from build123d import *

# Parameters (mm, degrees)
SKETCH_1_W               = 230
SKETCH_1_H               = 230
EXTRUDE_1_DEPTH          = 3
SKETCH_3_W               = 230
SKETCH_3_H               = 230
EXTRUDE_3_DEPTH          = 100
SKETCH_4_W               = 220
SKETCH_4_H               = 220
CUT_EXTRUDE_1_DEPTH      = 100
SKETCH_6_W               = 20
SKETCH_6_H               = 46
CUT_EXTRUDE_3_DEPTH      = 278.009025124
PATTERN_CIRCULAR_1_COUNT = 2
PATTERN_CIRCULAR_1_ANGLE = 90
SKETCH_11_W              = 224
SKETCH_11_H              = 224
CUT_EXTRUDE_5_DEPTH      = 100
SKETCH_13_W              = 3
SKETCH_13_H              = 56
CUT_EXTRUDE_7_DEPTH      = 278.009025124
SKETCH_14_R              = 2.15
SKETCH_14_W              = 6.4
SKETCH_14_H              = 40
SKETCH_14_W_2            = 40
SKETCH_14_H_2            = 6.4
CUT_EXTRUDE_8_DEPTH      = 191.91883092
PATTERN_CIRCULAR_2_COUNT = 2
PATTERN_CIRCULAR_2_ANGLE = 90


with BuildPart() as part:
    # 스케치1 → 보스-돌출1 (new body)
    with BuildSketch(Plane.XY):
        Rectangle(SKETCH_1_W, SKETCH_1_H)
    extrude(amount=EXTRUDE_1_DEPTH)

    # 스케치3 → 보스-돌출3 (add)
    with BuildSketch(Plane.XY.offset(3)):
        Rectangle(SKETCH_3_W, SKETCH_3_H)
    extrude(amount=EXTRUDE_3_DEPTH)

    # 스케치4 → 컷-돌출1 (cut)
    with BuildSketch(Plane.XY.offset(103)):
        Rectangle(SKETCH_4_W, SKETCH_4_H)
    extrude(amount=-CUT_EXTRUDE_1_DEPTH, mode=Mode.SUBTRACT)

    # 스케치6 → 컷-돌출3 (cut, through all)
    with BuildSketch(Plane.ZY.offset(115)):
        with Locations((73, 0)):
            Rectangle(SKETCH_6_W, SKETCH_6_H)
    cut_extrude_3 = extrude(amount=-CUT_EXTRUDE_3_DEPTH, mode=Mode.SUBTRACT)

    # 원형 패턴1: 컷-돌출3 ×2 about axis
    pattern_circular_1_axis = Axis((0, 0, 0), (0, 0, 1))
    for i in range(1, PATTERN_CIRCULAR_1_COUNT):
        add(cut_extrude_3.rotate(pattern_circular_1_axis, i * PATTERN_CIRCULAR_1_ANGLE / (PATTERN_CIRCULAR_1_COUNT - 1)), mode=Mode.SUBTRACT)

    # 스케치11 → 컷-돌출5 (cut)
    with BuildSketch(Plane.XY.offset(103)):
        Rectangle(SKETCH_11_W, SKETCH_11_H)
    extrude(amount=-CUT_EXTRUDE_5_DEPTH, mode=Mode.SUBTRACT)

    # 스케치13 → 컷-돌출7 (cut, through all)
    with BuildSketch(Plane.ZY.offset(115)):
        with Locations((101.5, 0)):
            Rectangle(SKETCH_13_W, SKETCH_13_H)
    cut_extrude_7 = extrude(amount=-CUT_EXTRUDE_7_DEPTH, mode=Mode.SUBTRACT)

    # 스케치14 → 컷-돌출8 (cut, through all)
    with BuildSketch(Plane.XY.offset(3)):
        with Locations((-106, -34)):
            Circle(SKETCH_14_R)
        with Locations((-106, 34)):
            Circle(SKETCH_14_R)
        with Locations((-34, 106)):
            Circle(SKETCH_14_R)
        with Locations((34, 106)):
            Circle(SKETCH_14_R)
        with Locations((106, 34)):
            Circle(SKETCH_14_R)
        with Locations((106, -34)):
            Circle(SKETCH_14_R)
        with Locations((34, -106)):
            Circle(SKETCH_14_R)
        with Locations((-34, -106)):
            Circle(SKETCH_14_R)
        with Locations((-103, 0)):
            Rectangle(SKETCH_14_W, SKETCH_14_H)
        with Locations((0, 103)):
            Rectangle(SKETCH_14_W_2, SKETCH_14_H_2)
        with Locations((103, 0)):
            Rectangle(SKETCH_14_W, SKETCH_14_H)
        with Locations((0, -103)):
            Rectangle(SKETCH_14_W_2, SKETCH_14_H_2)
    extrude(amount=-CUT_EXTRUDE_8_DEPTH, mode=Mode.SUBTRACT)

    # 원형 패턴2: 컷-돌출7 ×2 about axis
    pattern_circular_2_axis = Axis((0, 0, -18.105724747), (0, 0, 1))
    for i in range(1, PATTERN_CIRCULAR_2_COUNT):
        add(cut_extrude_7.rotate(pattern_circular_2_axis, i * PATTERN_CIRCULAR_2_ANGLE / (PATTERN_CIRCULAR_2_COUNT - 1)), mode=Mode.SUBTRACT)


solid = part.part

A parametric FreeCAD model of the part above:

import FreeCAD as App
import Part
import Sketcher
from FreeCAD import Vector
Q = App.Units.Quantity


def add_polygon(sketch, points):
    """Adds a closed chain of lines whose ends are joined by coincident constraints."""
    first, n = sketch.GeometryCount, len(points)
    for a, b in zip(points, points[1:] + points[:1]):
        sketch.addGeometry(Part.LineSegment(App.Vector(*a, 0), App.Vector(*b, 0)), False)
    for i in range(n):
        sketch.addConstraint(Sketcher.Constraint("Coincident", first + i, 2, first + (i + 1) % n, 1))

doc = App.newDocument("Part")
body = doc.addObject("PartDesign::Body", "Body")

sketch1 = body.newObject("Sketcher::SketchObject", "Sketch")
sketch1.AttachmentSupport = (doc.getObject("XY_Plane"), [""])
sketch1.MapMode = "FlatFace"
add_polygon(sketch1, [(-115, 115), (-115, -115), (115, -115), (115, 115)])
sketch1.addConstraint([
    Sketcher.Constraint("Vertical", 0),
    Sketcher.Constraint("Horizontal", 1),
    Sketcher.Constraint("Vertical", 2),
    Sketcher.Constraint("Horizontal", 3),
    Sketcher.Constraint("Symmetric", 0, 2, 2, 2, -1, 1),
    Sketcher.Constraint("Equal", 3, 0),
    Sketcher.Constraint("DistanceX", 1, 1, 1, 2, Q("230 mm")),
])
pad1 = body.newObject("PartDesign::Pad", "Pad")
pad1.Profile = sketch1
pad1.Length = 3

sketch2 = body.newObject("Sketcher::SketchObject", "Sketch001")
sketch2.AttachmentSupport = (doc.getObject("XY_Plane"), [""])
sketch2.MapMode = "FlatFace"
sketch2.AttachmentOffset = App.Placement(Vector(0, 0, 3), App.Rotation())
add_polygon(sketch2, [(-115, 115), (-115, -115), (115, -115), (115, 115)])
sketch2.addConstraint([
    Sketcher.Constraint("Vertical", 0),
    Sketcher.Constraint("Horizontal", 1),
    Sketcher.Constraint("Vertical", 2),
    Sketcher.Constraint("Horizontal", 3),
    Sketcher.Constraint("Symmetric", 0, 2, 2, 2, -1, 1),
    Sketcher.Constraint("Equal", 3, 0),
    Sketcher.Constraint("DistanceX", 1, 1, 1, 2, Q("230 mm")),
])
pad2 = body.newObject("PartDesign::Pad", "Pad001")
pad2.Profile = sketch2
pad2.Length = 100

sketch3 = body.newObject("Sketcher::SketchObject", "Sketch002")
sketch3.AttachmentSupport = (doc.getObject("XY_Plane"), [""])
sketch3.MapMode = "FlatFace"
sketch3.AttachmentOffset = App.Placement(Vector(0, 0, 103), App.Rotation())
add_polygon(sketch3, [(-110, 110), (-110, -110), (110, -110), (110, 110)])
sketch3.addConstraint([
    Sketcher.Constraint("Vertical", 0),
    Sketcher.Constraint("Horizontal", 1),
    Sketcher.Constraint("Vertical", 2),
    Sketcher.Constraint("Horizontal", 3),
    Sketcher.Constraint("Symmetric", 0, 2, 2, 2, -1, 1),
    Sketcher.Constraint("Equal", 3, 0),
    Sketcher.Constraint("DistanceX", 1, 1, 1, 2, Q("220 mm")),
])
pocket1 = body.newObject("PartDesign::Pocket", "Pocket")
pocket1.Profile = sketch3
pocket1.Length = 100

sketch4 = body.newObject("Sketcher::SketchObject", "Sketch003")
sketch4.AttachmentSupport = (doc.getObject("YZ_Plane"), [""])
sketch4.MapMode = "FlatFace"
sketch4.AttachmentOffset = App.Placement(Vector(0, 0, -115), App.Rotation())
add_polygon(sketch4, [(23, 63), (-23, 63), (-23, 83), (23, 83)])
sketch4.addConstraint([
    Sketcher.Constraint("Horizontal", 0),
    Sketcher.Constraint("Vertical", 1),
    Sketcher.Constraint("Horizontal", 2),
    Sketcher.Constraint("Vertical", 3),
    Sketcher.Constraint("DistanceX", 0, 2, 0, 1, Q("46 mm")),
    Sketcher.Constraint("DistanceY", 1, 1, 1, 2, Q("20 mm")),
    Sketcher.Constraint("DistanceX", 0, 2, -1, 1, Q("23 mm")),
    Sketcher.Constraint("DistanceY", -1, 1, 0, 2, Q("63 mm")),
])
pocket2 = body.newObject("PartDesign::Pocket", "Pocket001")
pocket2.Profile = sketch4
pocket2.Type = "ThroughAll"
pocket2.Reversed = True
doc.recompute()

polarpattern = body.newObject("PartDesign::PolarPattern", "PolarPattern")
polarpattern.Originals = [pocket2]
polarpattern.Axis = (doc.getObject("Z_Axis"), [""])
polarpattern.Angle = 90
polarpattern.Occurrences = 2
body.Tip = polarpattern

sketch5 = body.newObject("Sketcher::SketchObject", "Sketch004")
sketch5.AttachmentSupport = (doc.getObject("XY_Plane"), [""])
sketch5.MapMode = "FlatFace"
sketch5.AttachmentOffset = App.Placement(Vector(0, 0, 103), App.Rotation())
add_polygon(sketch5, [(-112, 112), (-112, -112), (112, -112), (112, 112)])
sketch5.addConstraint([
    Sketcher.Constraint("Vertical", 0),
    Sketcher.Constraint("Horizontal", 1),
    Sketcher.Constraint("Vertical", 2),
    Sketcher.Constraint("Horizontal", 3),
    Sketcher.Constraint("Symmetric", 0, 2, 2, 2, -1, 1),
    Sketcher.Constraint("Equal", 3, 0),
    Sketcher.Constraint("DistanceX", 1, 1, 1, 2, Q("224 mm")),
])
pocket3 = body.newObject("PartDesign::Pocket", "Pocket002")
pocket3.Profile = sketch5
pocket3.Length = 100

sketch6 = body.newObject("Sketcher::SketchObject", "Sketch005")
sketch6.AttachmentSupport = (doc.getObject("YZ_Plane"), [""])
sketch6.MapMode = "FlatFace"
sketch6.AttachmentOffset = App.Placement(Vector(0, 0, -115), App.Rotation())
add_polygon(sketch6, [(28, 100), (-28, 100), (-28, 103), (28, 103)])
sketch6.addConstraint([
    Sketcher.Constraint("Horizontal", 0),
    Sketcher.Constraint("Vertical", 1),
    Sketcher.Constraint("Horizontal", 2),
    Sketcher.Constraint("Vertical", 3),
    Sketcher.Constraint("DistanceX", 0, 2, 0, 1, Q("56 mm")),
    Sketcher.Constraint("DistanceY", 1, 1, 1, 2, Q("3 mm")),
    Sketcher.Constraint("DistanceX", 0, 2, -1, 1, Q("28 mm")),
    Sketcher.Constraint("DistanceY", -1, 1, 0, 2, Q("100 mm")),
])
pocket4 = body.newObject("PartDesign::Pocket", "Pocket003")
pocket4.Profile = sketch6
pocket4.Type = "ThroughAll"
pocket4.Reversed = True

sketch7 = body.newObject("Sketcher::SketchObject", "Sketch006")
sketch7.AttachmentSupport = (doc.getObject("XY_Plane"), [""])
sketch7.MapMode = "FlatFace"
sketch7.AttachmentOffset = App.Placement(Vector(0, 0, 3), App.Rotation())
sketch7.addGeometry(Part.Circle(Vector(-106, -34, 0), Vector(0, 0, 1), 2.1), False)
sketch7.addGeometry(Part.Circle(Vector(-106, 34, 0), Vector(0, 0, 1), 2.1), False)
sketch7.addGeometry(Part.Circle(Vector(-34, 106, 0), Vector(0, 0, 1), 2.1), False)
sketch7.addGeometry(Part.Circle(Vector(34, 106, 0), Vector(0, 0, 1), 2.1), False)
sketch7.addGeometry(Part.Circle(Vector(106, 34, 0), Vector(0, 0, 1), 2.1), False)
sketch7.addGeometry(Part.Circle(Vector(106, -34, 0), Vector(0, 0, 1), 2.1), False)
sketch7.addGeometry(Part.Circle(Vector(34, -106, 0), Vector(0, 0, 1), 2.1), False)
sketch7.addGeometry(Part.Circle(Vector(-34, -106, 0), Vector(0, 0, 1), 2.1), False)
add_polygon(sketch7, [(-106.2, 20), (-106.2, -20), (-99.8, -20), (-99.8, 20)])
add_polygon(sketch7, [(-20, 106.2), (-20, 99.8), (20, 99.8), (20, 106.2)])
add_polygon(sketch7, [(99.8, 20), (99.8, -20), (106.2, -20), (106.2, 20)])
add_polygon(sketch7, [(-20, -99.8), (-20, -106.2), (20, -106.2), (20, -99.8)])
sketch7.addConstraint([
    Sketcher.Constraint("Vertical", 8),
    Sketcher.Constraint("Horizontal", 9),
    Sketcher.Constraint("Vertical", 10),
    Sketcher.Constraint("Horizontal", 11),
    Sketcher.Constraint("Vertical", 12),
    Sketcher.Constraint("Horizontal", 13),
    Sketcher.Constraint("Vertical", 14),
    Sketcher.Constraint("Horizontal", 15),
    Sketcher.Constraint("Vertical", 16),
    Sketcher.Constraint("Horizontal", 17),
    Sketcher.Constraint("Vertical", 18),
    Sketcher.Constraint("Horizontal", 19),
    Sketcher.Constraint("Vertical", 20),
    Sketcher.Constraint("Horizontal", 21),
    Sketcher.Constraint("Vertical", 22),
    Sketcher.Constraint("Horizontal", 23),
    Sketcher.Constraint("Equal", 0, 1),
    Sketcher.Constraint("Equal", 1, 2),
    Sketcher.Constraint("Equal", 2, 3),
    Sketcher.Constraint("Equal", 3, 4),
    Sketcher.Constraint("Equal", 4, 5),
    Sketcher.Constraint("Equal", 5, 6),
    Sketcher.Constraint("Equal", 6, 7),
    Sketcher.Constraint("Symmetric", 0, 3, 4, 3, -1, 1),
    Sketcher.Constraint("Symmetric", 1, 3, 5, 3, -1, 1),
    Sketcher.Constraint("Symmetric", 2, 3, 6, 3, -1, 1),
    Sketcher.Constraint("Symmetric", 3, 3, 7, 3, -1, 1),
    Sketcher.Constraint("Symmetric", 10, 2, 16, 2, -1, 1),
    Sketcher.Constraint("Symmetric", 8, 2, 18, 2, -1, 1),
    Sketcher.Constraint("Symmetric", 14, 2, 20, 2, -1, 1),
    Sketcher.Constraint("Symmetric", 12, 2, 22, 2, -1, 1),
    Sketcher.Constraint("Symmetric", 2, 3, 3, 3, -2),
    Sketcher.Constraint("Symmetric", 1, 3, 4, 3, -2),
    Sketcher.Constraint("Horizontal", 9, 2, 16, 2),
    Sketcher.Constraint("Vertical", 15, 2, 20, 2),
    Sketcher.Constraint("Equal", 23, 8),
    Sketcher.Constraint("Equal", 19, 12),
    Sketcher.Constraint("Diameter", 0, Q("4.3 mm")),
    Sketcher.Constraint("DistanceX", 13, 1, 13, 2, Q("40 mm")),
    Sketcher.Constraint("DistanceX", 9, 1, 9, 2, Q("6.4 mm")),
    Sketcher.Constraint("DistanceX", 0, 3, -1, 1, Q("106 mm")),
    Sketcher.Constraint("DistanceY", 0, 3, -1, 1, Q("34 mm")),
    Sketcher.Constraint("DistanceX", 2, 3, -1, 1, Q("34 mm")),
    Sketcher.Constraint("DistanceY", -1, 1, 2, 3, Q("106 mm")),
    Sketcher.Constraint("DistanceX", 8, 2, -1, 1, Q("106.2 mm")),
    Sketcher.Constraint("DistanceY", -1, 1, 12, 2, Q("99.8 mm")),
])
pocket5 = body.newObject("PartDesign::Pocket", "Pocket004")
pocket5.Profile = sketch7
pocket5.Type = "ThroughAll"
doc.recompute()

polarpattern2 = body.newObject("PartDesign::PolarPattern", "PolarPattern001")
polarpattern2.Originals = [pocket4]
polarpattern2.Axis = (doc.getObject("Z_Axis"), [""])
polarpattern2.Angle = 90
polarpattern2.Occurrences = 2
body.Tip = polarpattern2

doc.recompute()
